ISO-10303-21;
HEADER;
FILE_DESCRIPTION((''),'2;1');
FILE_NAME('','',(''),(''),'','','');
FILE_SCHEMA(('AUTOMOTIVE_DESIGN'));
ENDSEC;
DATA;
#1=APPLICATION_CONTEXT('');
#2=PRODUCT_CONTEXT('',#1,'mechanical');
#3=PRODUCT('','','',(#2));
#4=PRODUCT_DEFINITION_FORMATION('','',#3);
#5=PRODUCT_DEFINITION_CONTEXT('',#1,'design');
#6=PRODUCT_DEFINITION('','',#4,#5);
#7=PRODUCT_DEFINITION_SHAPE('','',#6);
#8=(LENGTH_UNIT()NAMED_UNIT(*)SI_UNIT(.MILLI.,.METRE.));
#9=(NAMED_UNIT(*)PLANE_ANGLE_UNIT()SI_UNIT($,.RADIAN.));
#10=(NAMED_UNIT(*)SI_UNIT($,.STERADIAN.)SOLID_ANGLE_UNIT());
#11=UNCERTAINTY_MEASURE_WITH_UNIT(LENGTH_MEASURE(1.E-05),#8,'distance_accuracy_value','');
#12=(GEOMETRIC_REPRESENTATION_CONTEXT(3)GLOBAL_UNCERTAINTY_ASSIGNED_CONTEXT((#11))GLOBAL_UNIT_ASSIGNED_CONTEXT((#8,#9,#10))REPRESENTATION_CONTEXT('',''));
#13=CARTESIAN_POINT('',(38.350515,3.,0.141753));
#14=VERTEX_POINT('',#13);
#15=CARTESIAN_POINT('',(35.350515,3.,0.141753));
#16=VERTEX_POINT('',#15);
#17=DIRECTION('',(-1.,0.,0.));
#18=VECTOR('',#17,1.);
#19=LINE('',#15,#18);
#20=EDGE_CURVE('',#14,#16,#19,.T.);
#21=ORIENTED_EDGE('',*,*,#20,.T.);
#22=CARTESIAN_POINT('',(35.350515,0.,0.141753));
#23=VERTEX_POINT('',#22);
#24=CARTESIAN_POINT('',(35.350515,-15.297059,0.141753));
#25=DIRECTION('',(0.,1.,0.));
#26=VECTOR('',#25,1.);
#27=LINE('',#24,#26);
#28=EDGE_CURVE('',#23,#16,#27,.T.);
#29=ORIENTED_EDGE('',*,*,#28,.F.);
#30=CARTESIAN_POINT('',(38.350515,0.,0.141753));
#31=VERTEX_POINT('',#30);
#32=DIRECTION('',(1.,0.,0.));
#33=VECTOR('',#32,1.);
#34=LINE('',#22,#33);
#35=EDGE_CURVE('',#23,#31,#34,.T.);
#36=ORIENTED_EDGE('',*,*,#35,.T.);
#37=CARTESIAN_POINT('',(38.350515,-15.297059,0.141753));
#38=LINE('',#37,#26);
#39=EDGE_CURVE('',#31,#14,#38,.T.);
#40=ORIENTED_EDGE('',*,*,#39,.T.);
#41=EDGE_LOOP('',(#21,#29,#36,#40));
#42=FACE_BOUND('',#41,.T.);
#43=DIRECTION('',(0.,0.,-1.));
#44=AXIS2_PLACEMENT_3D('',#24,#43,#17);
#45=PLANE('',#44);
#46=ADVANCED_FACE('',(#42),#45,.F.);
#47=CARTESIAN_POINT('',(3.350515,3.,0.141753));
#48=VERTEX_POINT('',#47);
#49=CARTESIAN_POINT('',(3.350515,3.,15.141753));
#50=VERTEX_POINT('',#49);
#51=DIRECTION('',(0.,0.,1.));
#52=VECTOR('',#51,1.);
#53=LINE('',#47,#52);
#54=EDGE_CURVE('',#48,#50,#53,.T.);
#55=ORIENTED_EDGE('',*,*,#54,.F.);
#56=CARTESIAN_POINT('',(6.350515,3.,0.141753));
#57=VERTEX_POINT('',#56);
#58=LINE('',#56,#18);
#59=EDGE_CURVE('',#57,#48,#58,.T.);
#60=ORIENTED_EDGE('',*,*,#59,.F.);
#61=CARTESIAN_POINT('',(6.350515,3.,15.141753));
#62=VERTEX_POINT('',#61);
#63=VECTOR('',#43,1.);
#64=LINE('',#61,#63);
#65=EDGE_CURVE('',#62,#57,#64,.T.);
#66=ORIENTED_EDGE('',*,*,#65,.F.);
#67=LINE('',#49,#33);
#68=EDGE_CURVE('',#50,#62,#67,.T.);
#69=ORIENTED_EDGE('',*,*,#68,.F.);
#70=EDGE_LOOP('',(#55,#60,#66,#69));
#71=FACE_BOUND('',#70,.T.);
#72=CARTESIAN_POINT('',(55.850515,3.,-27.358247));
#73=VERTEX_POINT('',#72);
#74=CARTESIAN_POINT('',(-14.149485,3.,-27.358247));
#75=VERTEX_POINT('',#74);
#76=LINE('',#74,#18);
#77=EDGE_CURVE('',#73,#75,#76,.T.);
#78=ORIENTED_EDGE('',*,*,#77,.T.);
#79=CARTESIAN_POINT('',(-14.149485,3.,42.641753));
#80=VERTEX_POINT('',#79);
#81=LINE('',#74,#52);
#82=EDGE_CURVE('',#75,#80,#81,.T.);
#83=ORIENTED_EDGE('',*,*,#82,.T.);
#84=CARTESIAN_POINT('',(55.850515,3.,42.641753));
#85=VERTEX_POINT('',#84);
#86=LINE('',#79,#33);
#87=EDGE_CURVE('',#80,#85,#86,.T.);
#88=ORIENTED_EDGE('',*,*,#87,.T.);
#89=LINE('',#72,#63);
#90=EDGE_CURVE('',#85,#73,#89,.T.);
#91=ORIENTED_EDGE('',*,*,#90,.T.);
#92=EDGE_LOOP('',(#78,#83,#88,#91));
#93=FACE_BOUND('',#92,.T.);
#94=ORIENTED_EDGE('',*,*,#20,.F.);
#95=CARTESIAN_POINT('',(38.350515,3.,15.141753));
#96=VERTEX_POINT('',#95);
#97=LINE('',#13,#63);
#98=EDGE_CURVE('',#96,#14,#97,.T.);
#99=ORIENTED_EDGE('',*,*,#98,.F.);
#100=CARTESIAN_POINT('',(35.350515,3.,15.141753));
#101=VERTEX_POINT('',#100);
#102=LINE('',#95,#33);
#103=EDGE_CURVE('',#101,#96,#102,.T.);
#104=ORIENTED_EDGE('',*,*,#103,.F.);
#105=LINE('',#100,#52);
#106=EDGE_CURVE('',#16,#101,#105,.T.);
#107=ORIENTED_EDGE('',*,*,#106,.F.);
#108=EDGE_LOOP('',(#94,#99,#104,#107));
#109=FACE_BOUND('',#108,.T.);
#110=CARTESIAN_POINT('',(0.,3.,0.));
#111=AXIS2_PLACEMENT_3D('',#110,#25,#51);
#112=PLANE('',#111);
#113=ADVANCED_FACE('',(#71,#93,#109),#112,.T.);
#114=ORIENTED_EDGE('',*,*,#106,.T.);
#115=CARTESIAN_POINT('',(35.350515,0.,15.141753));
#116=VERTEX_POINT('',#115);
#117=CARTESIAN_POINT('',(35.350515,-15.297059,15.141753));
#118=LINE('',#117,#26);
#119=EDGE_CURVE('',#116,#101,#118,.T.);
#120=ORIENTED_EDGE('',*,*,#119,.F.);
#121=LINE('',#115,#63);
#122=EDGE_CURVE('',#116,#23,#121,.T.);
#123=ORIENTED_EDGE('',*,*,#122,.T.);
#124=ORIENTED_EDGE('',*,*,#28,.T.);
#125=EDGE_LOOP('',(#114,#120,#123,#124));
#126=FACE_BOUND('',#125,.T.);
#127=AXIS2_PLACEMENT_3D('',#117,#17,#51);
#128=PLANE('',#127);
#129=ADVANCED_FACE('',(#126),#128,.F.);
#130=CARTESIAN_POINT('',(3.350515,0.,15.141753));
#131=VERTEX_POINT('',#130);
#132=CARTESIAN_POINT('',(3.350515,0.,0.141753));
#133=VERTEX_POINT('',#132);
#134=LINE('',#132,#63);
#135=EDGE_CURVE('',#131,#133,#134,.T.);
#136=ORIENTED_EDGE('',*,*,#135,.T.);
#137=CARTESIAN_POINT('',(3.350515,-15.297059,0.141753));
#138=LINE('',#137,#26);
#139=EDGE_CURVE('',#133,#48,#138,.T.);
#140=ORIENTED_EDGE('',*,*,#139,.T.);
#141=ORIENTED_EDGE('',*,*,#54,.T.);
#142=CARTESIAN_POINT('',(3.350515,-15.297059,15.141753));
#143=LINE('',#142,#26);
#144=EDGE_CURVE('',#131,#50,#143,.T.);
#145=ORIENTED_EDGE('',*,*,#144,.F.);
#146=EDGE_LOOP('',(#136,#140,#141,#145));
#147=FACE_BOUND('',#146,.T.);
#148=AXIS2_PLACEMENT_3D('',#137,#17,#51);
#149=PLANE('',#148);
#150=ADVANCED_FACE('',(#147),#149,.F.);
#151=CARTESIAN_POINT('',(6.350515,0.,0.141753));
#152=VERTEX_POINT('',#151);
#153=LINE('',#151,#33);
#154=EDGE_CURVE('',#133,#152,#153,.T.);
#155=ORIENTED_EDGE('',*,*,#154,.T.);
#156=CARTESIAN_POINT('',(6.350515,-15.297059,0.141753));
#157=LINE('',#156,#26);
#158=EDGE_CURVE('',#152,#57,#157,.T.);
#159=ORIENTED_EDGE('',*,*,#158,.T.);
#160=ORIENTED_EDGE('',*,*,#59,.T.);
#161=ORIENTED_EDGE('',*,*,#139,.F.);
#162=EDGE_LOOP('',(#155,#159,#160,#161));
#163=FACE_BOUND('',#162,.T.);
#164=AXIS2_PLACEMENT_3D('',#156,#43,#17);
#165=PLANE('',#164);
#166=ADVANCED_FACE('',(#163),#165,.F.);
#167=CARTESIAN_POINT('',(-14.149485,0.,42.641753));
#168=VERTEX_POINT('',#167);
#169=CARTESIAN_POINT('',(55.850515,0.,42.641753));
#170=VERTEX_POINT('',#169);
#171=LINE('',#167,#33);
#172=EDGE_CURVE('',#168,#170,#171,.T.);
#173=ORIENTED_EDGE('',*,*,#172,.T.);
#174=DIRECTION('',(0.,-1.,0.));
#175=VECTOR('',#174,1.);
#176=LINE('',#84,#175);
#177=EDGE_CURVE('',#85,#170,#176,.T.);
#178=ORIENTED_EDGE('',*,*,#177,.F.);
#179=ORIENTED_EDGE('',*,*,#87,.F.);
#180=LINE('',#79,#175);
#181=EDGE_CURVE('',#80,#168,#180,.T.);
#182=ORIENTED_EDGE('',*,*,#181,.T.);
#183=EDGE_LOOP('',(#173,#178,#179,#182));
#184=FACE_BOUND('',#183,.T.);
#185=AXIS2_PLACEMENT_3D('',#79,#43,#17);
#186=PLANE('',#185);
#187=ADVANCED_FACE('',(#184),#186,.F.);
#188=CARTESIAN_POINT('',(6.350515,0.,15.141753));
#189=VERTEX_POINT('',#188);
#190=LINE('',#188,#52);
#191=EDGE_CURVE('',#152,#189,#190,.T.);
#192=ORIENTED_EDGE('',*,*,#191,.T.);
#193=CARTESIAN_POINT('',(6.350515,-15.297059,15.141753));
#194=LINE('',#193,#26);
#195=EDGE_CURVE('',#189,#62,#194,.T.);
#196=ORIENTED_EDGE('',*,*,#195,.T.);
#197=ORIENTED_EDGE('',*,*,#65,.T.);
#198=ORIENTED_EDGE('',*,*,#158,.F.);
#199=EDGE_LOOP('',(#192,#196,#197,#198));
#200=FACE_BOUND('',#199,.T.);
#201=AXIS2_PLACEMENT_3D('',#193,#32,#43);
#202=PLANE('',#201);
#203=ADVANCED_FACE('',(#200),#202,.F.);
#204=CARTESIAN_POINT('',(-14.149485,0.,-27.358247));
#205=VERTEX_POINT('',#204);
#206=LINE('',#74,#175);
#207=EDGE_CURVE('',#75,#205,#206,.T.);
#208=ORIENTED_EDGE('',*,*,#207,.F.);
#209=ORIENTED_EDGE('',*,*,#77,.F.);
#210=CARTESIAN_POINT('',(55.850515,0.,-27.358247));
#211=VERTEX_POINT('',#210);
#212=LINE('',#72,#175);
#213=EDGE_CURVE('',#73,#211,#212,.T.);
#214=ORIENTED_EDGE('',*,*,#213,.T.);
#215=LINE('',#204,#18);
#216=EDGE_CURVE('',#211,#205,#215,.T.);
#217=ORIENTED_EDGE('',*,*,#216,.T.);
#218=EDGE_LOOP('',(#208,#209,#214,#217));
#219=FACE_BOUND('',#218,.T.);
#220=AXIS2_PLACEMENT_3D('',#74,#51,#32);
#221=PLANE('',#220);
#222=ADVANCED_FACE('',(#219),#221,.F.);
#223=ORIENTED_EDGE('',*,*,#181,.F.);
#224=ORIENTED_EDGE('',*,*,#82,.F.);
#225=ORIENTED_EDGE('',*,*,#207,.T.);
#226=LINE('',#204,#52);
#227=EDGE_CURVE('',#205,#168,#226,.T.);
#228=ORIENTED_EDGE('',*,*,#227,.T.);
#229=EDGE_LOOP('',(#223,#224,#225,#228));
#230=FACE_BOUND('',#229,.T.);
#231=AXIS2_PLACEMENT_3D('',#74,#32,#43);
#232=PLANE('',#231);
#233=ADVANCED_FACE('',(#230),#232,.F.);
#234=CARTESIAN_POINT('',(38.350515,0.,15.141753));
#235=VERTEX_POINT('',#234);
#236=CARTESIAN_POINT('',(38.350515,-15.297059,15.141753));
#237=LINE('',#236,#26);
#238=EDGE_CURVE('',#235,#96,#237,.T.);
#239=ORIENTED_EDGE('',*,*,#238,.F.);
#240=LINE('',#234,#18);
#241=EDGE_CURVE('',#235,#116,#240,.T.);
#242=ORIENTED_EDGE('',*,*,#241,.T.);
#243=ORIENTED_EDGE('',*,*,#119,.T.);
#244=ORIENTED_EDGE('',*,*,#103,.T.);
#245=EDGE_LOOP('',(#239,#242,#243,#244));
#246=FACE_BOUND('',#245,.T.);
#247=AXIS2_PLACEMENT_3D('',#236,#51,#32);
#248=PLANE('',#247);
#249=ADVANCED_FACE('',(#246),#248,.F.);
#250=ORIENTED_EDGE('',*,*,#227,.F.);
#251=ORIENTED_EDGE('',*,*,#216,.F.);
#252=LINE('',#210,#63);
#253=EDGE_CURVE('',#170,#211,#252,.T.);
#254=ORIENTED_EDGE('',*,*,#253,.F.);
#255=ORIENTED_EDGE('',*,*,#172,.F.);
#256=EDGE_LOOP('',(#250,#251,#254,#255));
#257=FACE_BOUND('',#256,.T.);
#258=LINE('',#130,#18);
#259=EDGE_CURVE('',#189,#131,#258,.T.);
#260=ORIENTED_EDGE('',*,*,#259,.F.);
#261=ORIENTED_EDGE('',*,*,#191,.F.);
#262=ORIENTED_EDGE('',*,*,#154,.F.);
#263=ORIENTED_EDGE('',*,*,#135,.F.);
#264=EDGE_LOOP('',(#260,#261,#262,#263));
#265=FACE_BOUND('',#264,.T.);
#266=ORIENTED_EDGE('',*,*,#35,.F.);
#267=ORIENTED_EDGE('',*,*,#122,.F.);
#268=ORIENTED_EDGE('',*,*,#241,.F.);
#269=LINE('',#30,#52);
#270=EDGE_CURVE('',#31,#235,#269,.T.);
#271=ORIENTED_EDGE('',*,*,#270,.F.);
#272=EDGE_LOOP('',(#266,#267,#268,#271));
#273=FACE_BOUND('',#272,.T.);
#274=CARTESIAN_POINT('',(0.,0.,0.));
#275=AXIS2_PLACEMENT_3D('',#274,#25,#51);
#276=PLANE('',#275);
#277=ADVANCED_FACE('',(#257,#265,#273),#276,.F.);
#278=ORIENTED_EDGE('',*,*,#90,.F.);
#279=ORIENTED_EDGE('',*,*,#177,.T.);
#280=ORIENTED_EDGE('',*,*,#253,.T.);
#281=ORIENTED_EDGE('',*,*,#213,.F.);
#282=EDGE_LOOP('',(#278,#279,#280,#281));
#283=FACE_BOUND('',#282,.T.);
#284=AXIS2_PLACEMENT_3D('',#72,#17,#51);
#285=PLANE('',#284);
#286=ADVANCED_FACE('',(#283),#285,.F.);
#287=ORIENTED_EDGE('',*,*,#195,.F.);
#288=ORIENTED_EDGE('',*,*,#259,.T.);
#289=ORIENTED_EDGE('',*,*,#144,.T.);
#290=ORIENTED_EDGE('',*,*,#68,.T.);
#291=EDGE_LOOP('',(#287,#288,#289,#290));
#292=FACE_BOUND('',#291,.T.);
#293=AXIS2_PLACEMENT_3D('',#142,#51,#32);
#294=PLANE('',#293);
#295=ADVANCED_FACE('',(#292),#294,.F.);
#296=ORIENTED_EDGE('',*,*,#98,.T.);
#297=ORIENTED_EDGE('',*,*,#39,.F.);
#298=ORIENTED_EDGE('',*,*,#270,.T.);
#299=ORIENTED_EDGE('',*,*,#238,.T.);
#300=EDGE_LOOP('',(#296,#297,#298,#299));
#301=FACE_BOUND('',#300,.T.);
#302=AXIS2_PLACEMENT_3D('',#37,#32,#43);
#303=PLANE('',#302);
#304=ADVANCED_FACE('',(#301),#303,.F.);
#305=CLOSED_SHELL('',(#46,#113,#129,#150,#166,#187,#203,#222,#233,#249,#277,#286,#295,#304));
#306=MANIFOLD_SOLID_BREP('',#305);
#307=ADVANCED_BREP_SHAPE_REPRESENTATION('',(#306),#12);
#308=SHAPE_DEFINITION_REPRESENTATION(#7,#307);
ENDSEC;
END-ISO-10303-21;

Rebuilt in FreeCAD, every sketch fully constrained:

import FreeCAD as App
import Part
import Sketcher

V = App.Vector


def add_polygon(sketch, points):
    """Adds a closed chain of lines whose ends are joined by coincident constraints."""
    first, n = sketch.GeometryCount, len(points)
    for a, b in zip(points, points[1:] + points[:1]):
        sketch.addGeometry(Part.LineSegment(App.Vector(*a, 0), App.Vector(*b, 0)), False)
    for i in range(n):
        sketch.addConstraint(Sketcher.Constraint("Coincident", first + i, 2, first + (i + 1) % n, 1))

doc = App.newDocument("Part")
body = doc.addObject("PartDesign::Body", "Body")

# Sketch on XZ plane
sketch1 = body.newObject("Sketcher::SketchObject", "Sketch")
sketch1.AttachmentSupport = (doc.getObject("XZ_Plane"), [""])
sketch1.MapMode = "FlatFace"
add_polygon(sketch1, [(-14, -27), (-14, 43), (56, 43), (56, -27)])  # lines 0-3
sketch1.addConstraint(Sketcher.Constraint("Vertical", 0))
sketch1.addConstraint(Sketcher.Constraint("Horizontal", 1))
sketch1.addConstraint(Sketcher.Constraint("Vertical", 2))
sketch1.addConstraint(Sketcher.Constraint("Horizontal", 3))
sketch1.addConstraint(Sketcher.Constraint("Equal", 3, 0))
sketch1.addConstraint(Sketcher.Constraint("DistanceX", 1, 1, 1, 2, 70.0))
sketch1.addConstraint(Sketcher.Constraint("DistanceX", 0, 2, -1, 1, 14.149485))
sketch1.addConstraint(Sketcher.Constraint("DistanceY", -1, 1, 0, 2, 42.641753))
pad1 = body.newObject("PartDesign::Pad", "Pad")
pad1.Profile = sketch1
pad1.Length = 3
pad1.Reversed = True

# Sketch on XZ plane
sketch2 = body.newObject("Sketcher::SketchObject", "Sketch001")
sketch2.AttachmentSupport = (doc.getObject("XZ_Plane"), [""])
sketch2.MapMode = "FlatFace"
sketch2.AttachmentOffset = App.Placement(V(0, 0, -3), App.Rotation())
add_polygon(sketch2, [(3.4, 0.1), (3.4, 15.1), (6.4, 15.1), (6.4, 0.1)])  # lines 0-3
add_polygon(sketch2, [(35.4, 0.1), (35.4, 15.1), (38.4, 15.1), (38.4, 0.1)])  # lines 4-7
sketch2.addConstraint(Sketcher.Constraint("Vertical", 0))
sketch2.addConstraint(Sketcher.Constraint("Horizontal", 1))
sketch2.addConstraint(Sketcher.Constraint("Vertical", 2))
sketch2.addConstraint(Sketcher.Constraint("Horizontal", 3))
sketch2.addConstraint(Sketcher.Constraint("Vertical", 4))
sketch2.addConstraint(Sketcher.Constraint("Horizontal", 5))
sketch2.addConstraint(Sketcher.Constraint("Vertical", 6))
sketch2.addConstraint(Sketcher.Constraint("Horizontal", 7))
sketch2.addConstraint(Sketcher.Constraint("Horizontal", 1, 2, 4, 2))
sketch2.addConstraint(Sketcher.Constraint("Horizontal", 3, 2, 6, 2))
sketch2.addConstraint(Sketcher.Constraint("Equal", 3, 5))
sketch2.addConstraint(Sketcher.Constraint("DistanceX", 1, 1, 1, 2, 3.0))
sketch2.addConstraint(Sketcher.Constraint("DistanceY", 0, 1, 0, 2, 15.0))
sketch2.addConstraint(Sketcher.Constraint("DistanceX", 1, 2, 4, 2, 29.0))
sketch2.addConstraint(Sketcher.Constraint("DistanceX", -1, 1, 0, 2, 3.350515))
sketch2.addConstraint(Sketcher.Constraint("DistanceY", -1, 1, 0, 2, 15.141753))
pocket1 = body.newObject("PartDesign::Pocket", "Pocket")
pocket1.Profile = sketch2
pocket1.Length = 3
pocket1.Reversed = True

doc.recompute()
